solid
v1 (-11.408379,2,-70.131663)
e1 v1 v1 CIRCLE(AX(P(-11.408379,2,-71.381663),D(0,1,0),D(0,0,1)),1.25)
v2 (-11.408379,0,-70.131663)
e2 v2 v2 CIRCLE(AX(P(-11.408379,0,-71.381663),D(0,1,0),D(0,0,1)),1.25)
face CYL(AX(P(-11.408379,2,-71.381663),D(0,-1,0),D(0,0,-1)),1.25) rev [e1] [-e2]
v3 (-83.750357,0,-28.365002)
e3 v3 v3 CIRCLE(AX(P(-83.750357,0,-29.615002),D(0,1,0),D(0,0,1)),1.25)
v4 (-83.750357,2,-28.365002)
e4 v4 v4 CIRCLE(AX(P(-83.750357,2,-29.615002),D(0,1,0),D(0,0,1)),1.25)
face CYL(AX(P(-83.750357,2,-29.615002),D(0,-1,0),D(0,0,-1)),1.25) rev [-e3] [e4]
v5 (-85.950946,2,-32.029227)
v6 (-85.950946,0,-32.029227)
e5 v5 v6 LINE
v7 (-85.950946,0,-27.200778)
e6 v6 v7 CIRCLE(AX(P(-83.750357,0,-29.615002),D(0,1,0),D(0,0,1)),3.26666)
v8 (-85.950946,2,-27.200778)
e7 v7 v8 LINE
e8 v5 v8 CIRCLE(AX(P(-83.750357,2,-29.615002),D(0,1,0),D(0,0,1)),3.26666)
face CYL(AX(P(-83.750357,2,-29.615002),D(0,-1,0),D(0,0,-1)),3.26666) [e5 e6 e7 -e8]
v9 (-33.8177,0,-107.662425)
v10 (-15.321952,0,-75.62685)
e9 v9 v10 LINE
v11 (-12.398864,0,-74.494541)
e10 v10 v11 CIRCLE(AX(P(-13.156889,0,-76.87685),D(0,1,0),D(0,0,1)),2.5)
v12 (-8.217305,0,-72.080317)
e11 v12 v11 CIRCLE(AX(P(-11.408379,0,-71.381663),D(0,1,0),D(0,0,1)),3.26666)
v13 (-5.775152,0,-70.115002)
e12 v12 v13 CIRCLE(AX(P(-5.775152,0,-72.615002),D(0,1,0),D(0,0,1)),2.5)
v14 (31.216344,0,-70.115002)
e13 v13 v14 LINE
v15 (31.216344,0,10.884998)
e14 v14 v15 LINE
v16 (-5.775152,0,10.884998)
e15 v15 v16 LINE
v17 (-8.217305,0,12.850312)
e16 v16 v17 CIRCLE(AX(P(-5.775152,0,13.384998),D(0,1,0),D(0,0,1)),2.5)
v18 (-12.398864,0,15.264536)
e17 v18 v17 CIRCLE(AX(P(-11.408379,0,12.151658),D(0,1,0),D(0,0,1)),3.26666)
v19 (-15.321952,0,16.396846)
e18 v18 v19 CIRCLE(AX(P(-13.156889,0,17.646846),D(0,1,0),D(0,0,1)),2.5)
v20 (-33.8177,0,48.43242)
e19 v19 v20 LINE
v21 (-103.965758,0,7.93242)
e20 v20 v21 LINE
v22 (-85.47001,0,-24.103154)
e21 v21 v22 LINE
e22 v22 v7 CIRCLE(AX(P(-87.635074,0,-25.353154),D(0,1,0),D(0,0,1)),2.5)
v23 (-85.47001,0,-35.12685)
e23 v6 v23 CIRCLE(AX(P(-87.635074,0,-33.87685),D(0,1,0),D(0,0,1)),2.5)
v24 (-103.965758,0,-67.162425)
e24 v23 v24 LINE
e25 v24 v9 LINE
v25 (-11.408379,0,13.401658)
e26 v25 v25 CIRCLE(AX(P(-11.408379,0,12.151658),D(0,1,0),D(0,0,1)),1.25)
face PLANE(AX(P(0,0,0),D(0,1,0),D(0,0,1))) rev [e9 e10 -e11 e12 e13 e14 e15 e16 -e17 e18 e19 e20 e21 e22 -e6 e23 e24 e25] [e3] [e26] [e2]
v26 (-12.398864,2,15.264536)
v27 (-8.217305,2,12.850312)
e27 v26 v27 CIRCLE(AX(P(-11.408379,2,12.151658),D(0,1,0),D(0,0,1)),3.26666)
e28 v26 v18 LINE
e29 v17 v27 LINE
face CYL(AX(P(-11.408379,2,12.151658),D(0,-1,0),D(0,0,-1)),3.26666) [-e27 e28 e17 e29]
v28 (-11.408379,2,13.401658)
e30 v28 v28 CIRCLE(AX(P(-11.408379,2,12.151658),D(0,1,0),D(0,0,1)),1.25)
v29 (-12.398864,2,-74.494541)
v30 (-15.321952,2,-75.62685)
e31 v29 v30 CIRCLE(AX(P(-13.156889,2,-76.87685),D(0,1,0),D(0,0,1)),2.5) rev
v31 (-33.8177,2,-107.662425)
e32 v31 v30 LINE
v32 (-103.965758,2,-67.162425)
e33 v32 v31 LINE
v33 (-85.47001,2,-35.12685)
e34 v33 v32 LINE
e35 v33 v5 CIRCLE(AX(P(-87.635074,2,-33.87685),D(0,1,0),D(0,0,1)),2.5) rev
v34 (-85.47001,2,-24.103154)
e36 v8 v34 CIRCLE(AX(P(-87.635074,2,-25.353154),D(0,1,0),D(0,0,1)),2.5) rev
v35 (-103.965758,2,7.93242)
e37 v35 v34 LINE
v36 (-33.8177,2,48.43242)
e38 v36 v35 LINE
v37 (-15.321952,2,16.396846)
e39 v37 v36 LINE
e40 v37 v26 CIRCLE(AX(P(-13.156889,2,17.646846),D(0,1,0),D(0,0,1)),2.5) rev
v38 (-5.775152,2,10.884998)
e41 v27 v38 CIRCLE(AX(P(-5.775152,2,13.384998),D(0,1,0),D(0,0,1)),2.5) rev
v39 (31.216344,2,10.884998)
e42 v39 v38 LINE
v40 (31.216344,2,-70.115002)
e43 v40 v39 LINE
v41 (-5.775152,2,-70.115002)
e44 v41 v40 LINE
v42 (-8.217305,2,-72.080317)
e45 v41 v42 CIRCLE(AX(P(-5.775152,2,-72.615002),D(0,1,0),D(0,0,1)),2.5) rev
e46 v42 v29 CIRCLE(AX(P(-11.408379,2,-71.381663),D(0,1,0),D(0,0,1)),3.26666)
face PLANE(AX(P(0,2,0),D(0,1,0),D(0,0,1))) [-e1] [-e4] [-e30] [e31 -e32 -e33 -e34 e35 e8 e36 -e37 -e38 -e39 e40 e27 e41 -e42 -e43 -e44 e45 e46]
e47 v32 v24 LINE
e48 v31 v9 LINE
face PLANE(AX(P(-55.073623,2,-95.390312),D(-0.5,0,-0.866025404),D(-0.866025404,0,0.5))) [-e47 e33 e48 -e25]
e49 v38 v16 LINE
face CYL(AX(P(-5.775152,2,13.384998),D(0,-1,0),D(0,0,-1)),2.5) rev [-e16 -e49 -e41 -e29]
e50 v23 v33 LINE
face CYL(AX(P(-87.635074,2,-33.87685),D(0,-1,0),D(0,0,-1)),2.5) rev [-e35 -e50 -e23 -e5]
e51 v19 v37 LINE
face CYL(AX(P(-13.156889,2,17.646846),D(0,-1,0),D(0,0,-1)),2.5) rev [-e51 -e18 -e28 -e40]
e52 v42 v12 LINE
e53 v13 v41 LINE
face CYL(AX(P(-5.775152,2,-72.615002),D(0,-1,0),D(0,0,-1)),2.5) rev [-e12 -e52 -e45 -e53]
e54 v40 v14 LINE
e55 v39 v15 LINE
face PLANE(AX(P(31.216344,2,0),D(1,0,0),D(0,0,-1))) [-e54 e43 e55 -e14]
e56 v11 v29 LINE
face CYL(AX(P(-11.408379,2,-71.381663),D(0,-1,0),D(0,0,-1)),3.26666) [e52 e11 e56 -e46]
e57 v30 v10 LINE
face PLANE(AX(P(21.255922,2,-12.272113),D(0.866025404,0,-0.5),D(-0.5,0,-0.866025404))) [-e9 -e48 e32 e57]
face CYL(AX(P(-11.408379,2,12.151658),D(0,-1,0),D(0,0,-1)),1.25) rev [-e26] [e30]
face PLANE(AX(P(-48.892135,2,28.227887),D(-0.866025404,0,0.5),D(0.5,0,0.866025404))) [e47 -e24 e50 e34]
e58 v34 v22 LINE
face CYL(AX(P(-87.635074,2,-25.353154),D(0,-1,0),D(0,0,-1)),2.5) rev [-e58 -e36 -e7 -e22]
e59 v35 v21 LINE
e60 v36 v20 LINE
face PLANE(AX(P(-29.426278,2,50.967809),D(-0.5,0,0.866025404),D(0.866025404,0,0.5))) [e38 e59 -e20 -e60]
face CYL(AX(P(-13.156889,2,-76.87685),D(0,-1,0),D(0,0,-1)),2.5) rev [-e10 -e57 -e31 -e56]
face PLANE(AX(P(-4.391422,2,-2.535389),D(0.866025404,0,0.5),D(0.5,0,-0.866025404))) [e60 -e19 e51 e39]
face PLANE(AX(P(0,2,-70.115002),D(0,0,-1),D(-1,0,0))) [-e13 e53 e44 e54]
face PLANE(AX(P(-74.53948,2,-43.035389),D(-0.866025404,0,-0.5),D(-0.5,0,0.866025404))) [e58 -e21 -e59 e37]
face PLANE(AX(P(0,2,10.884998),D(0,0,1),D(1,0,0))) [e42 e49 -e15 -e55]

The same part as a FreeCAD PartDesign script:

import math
import FreeCAD as App
import Part
import Sketcher
Q = App.Units.Quantity


def edges_at(feature, points):
    """Names of the edges that pass closest to the given points."""
    edges = feature.Shape.Edges
    near = lambda p: min(range(len(edges)), key=lambda i: edges[i].distToShape(Part.Vertex(*p))[0])
    return sorted({f"Edge{near(p) + 1}" for p in points})

doc = App.newDocument("Part")
body = doc.addObject("PartDesign::Body", "Body")

sketch1 = body.newObject("Sketcher::SketchObject", "Sketch")
sketch1.AttachmentSupport = (doc.getObject("XZ_Plane"), [""])
sketch1.MapMode = "FlatFace"
sketch1.addGeometry([
    Part.LineSegment(App.Vector(-33.8, -107.7, 0), App.Vector(-104, -67.2, 0)),
    Part.LineSegment(App.Vector(-104, -67.2, 0), App.Vector(-84.2, -32.9, 0)),
    Part.ArcOfCircle(Part.Circle(App.Vector(-83.8, -29.6, 0), App.Vector(0, 0, 1), 3.3), math.radians(97), math.radians(263)),
    Part.LineSegment(App.Vector(-84.2, -26.4, 0), App.Vector(-104, 7.9, 0)),
    Part.LineSegment(App.Vector(-104, 7.9, 0), App.Vector(-33.8, 48.4, 0)),
    Part.LineSegment(App.Vector(-33.8, 48.4, 0), App.Vector(-14, 14.1, 0)),
    Part.ArcOfCircle(Part.Circle(App.Vector(-11.4, 12.2, 0), App.Vector(0, 0, 1), 3.3), math.radians(-23), math.radians(143)),
    Part.LineSegment(App.Vector(-8.4, 10.9, 0), App.Vector(31.2, 10.9, 0)),
    Part.LineSegment(App.Vector(31.2, 10.9, 0), App.Vector(31.2, -70.1, 0)),
    Part.LineSegment(App.Vector(31.2, -70.1, 0), App.Vector(-8.4, -70.1, 0)),
    Part.ArcOfCircle(Part.Circle(App.Vector(-11.4, -71.4, 0), App.Vector(0, 0, 1), 3.3), math.radians(-143), math.radians(23)),
    Part.LineSegment(App.Vector(-14, -73.4, 0), App.Vector(-33.8, -107.7, 0)),
    Part.Circle(App.Vector(-11.4, 12.2, 0), App.Vector(0, 0, 1), 1.2),
    Part.Circle(App.Vector(-83.8, -29.6, 0), App.Vector(0, 0, 1), 1.2),
    Part.Circle(App.Vector(-11.4, -71.4, 0), App.Vector(0, 0, 1), 1.2),
], False)
sketch1.addConstraint([
    Sketcher.Constraint("Coincident", 0, 2, 1, 1),
    Sketcher.Constraint("Coincident", 1, 2, 2, 2),
    Sketcher.Constraint("Coincident", 2, 1, 3, 1),
    Sketcher.Constraint("Coincident", 3, 2, 4, 1),
    Sketcher.Constraint("Coincident", 4, 2, 5, 1),
    Sketcher.Constraint("Coincident", 5, 2, 6, 2),
    Sketcher.Constraint("Coincident", 6, 1, 7, 1),
    Sketcher.Constraint("Coincident", 7, 2, 8, 1),
    Sketcher.Constraint("Coincident", 8, 2, 9, 1),
    Sketcher.Constraint("Coincident", 9, 2, 10, 2),
    Sketcher.Constraint("Coincident", 10, 1, 11, 1),
    Sketcher.Constraint("Coincident", 11, 2, 0, 1),
    Sketcher.Constraint("Horizontal", 7),
    Sketcher.Constraint("Vertical", 8),
    Sketcher.Constraint("Horizontal", 9),
    Sketcher.Constraint("Coincident", 12, 3, 6, 3),
    Sketcher.Constraint("Coincident", 13, 3, 2, 3),
    Sketcher.Constraint("Coincident", 14, 3, 10, 3),
    Sketcher.Constraint("Equal", 2, 6),
    Sketcher.Constraint("Equal", 6, 10),
    Sketcher.Constraint("Equal", 12, 13),
    Sketcher.Constraint("Equal", 13, 14),
    Sketcher.Constraint("Perpendicular", 0, 1),
    Sketcher.Constraint("Perpendicular", 3, 4),
    Sketcher.Constraint("Perpendicular", 4, 5),
    Sketcher.Constraint("Parallel", 1, 11),
    Sketcher.Constraint("Vertical", 6, 3, 10, 3),
    Sketcher.Constraint("Vertical", 1, 2, 2, 1),
    Sketcher.Constraint("Vertical", 0, 2, 3, 2),
    Sketcher.Constraint("Vertical", 6, 1, 9, 2),
    Sketcher.Constraint("Vertical", 5, 2, 10, 1),
    Sketcher.Constraint("Vertical", 4, 2, 11, 2),
    Sketcher.Constraint("Equal", 1, 3),
    Sketcher.Constraint("Equal", 3, 5),
    Sketcher.Constraint("Diameter", 12, Q("2.5 mm")),
    Sketcher.Constraint("DistanceY", 8, 2, 8, 1, Q("81 mm")),
    Sketcher.Constraint("Angle", 0, Q("150 deg")),
    Sketcher.Constraint("Distance", 0, Q("81 mm")),
    Sketcher.Constraint("Radius", 2, Q("3.26666 mm")),
    Sketcher.Constraint("DistanceX", 4, 2, -1, 1, Q("33.8177 mm")),
    Sketcher.Constraint("DistanceX", 0, 2, 2, 3, Q("20.215401 mm")),
    Sketcher.Constraint("DistanceX", 7, 1, 7, 2, Q("39.613636 mm")),
    Sketcher.Constraint("DistanceX", 6, 3, -1, 1, Q("11.408379 mm")),
    Sketcher.Constraint("DistanceY", -1, 1, 6, 3, Q("12.151658 mm")),
    Sketcher.Constraint("DistanceX", 1, 2, -1, 1, Q("84.15894 mm")),
])
pad1 = body.newObject("PartDesign::Pad", "Pad")
pad1.Profile = sketch1
pad1.Length = 2
pad1.Reversed = True
doc.recompute()

fillet = body.newObject("PartDesign::Fillet", "Fillet")
fillet.Base = (pad1, edges_at(pad1, [
    (-14.011, 1, -73.356),
    (-8.397, 1, -70.115),
    (-8.397, 1, 10.885),
    (-14.011, 1, 14.126),
    (-84.159, 1, -26.374),
    (-84.159, 1, -32.856),
]))
fillet.Radius = 2.5

doc.recompute()
